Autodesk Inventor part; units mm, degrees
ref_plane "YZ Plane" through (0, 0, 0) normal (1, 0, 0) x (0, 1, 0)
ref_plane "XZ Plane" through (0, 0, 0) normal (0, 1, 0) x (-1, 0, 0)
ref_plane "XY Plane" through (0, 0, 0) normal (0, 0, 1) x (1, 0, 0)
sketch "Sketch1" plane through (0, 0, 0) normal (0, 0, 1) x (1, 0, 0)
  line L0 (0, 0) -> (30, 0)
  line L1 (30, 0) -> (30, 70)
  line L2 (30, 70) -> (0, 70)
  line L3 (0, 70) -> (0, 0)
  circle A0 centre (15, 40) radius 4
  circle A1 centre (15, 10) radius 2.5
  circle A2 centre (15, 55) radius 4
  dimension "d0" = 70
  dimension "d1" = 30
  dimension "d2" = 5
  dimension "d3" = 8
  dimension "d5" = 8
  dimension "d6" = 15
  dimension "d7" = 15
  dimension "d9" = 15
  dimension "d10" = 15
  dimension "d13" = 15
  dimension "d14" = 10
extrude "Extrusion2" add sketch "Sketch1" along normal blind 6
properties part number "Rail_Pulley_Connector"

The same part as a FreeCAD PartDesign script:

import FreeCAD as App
import Part
import Sketcher
from FreeCAD import Vector
Q = App.Units.Quantity


def add_polygon(sketch, points):
    """Adds a closed chain of lines whose ends are joined by coincident constraints."""
    first, n = sketch.GeometryCount, len(points)
    for a, b in zip(points, points[1:] + points[:1]):
        sketch.addGeometry(Part.LineSegment(App.Vector(*a, 0), App.Vector(*b, 0)), False)
    for i in range(n):
        sketch.addConstraint(Sketcher.Constraint("Coincident", first + i, 2, first + (i + 1) % n, 1))

doc = App.newDocument("Part")
body = doc.addObject("PartDesign::Body", "Body")

sketch1 = doc.addObject("Sketcher::SketchObject", "Sketch")
body.addObject(sketch1)
sketch1.AttachmentSupport = (doc.XY_Plane, [""])
sketch1.MapMode = "FlatFace"
add_polygon(sketch1, [(0, 70), (0, 0), (30, 0), (30, 70)])
sketch1.addGeometry(Part.Circle(Vector(15, 10, 0), Vector(0, 0, 1), 2.5), False)
sketch1.addGeometry(Part.Circle(Vector(15, 40, 0), Vector(0, 0, 1), 4), False)
sketch1.addGeometry(Part.Circle(Vector(15, 55, 0), Vector(0, 0, 1), 4), False)
sketch1.addConstraint([
    Sketcher.Constraint("Vertical", 0),
    Sketcher.Constraint("Horizontal", 1),
    Sketcher.Constraint("Vertical", 2),
    Sketcher.Constraint("Horizontal", 3),
    Sketcher.Constraint("Coincident", 0, 2, -1, 1),
    Sketcher.Constraint("Equal", 5, 6),
    Sketcher.Constraint("Vertical", 4, 3, 5, 3),
    Sketcher.Constraint("Vertical", 5, 3, 6, 3),
    Sketcher.Constraint("Diameter", 4, Q("5 mm")),
    Sketcher.Constraint("Diameter", 5, Q("8 mm")),
    Sketcher.Constraint("DistanceX", 1, 1, 1, 2, Q("30 mm")),
    Sketcher.Constraint("DistanceY", 0, 2, 0, 1, Q("70 mm")),
    Sketcher.Constraint("DistanceX", -1, 1, 4, 3, Q("15 mm")),
    Sketcher.Constraint("DistanceY", -1, 1, 4, 3, Q("10 mm")),
    Sketcher.Constraint("DistanceY", 4, 3, 5, 3, Q("30 mm")),
    Sketcher.Constraint("DistanceY", 5, 3, 6, 3, Q("15 mm")),
])
pad1 = doc.addObject("PartDesign::Pad", "Pad")
body.addObject(pad1)
pad1.Profile = sketch1
pad1.Length = 6

doc.recompute()
